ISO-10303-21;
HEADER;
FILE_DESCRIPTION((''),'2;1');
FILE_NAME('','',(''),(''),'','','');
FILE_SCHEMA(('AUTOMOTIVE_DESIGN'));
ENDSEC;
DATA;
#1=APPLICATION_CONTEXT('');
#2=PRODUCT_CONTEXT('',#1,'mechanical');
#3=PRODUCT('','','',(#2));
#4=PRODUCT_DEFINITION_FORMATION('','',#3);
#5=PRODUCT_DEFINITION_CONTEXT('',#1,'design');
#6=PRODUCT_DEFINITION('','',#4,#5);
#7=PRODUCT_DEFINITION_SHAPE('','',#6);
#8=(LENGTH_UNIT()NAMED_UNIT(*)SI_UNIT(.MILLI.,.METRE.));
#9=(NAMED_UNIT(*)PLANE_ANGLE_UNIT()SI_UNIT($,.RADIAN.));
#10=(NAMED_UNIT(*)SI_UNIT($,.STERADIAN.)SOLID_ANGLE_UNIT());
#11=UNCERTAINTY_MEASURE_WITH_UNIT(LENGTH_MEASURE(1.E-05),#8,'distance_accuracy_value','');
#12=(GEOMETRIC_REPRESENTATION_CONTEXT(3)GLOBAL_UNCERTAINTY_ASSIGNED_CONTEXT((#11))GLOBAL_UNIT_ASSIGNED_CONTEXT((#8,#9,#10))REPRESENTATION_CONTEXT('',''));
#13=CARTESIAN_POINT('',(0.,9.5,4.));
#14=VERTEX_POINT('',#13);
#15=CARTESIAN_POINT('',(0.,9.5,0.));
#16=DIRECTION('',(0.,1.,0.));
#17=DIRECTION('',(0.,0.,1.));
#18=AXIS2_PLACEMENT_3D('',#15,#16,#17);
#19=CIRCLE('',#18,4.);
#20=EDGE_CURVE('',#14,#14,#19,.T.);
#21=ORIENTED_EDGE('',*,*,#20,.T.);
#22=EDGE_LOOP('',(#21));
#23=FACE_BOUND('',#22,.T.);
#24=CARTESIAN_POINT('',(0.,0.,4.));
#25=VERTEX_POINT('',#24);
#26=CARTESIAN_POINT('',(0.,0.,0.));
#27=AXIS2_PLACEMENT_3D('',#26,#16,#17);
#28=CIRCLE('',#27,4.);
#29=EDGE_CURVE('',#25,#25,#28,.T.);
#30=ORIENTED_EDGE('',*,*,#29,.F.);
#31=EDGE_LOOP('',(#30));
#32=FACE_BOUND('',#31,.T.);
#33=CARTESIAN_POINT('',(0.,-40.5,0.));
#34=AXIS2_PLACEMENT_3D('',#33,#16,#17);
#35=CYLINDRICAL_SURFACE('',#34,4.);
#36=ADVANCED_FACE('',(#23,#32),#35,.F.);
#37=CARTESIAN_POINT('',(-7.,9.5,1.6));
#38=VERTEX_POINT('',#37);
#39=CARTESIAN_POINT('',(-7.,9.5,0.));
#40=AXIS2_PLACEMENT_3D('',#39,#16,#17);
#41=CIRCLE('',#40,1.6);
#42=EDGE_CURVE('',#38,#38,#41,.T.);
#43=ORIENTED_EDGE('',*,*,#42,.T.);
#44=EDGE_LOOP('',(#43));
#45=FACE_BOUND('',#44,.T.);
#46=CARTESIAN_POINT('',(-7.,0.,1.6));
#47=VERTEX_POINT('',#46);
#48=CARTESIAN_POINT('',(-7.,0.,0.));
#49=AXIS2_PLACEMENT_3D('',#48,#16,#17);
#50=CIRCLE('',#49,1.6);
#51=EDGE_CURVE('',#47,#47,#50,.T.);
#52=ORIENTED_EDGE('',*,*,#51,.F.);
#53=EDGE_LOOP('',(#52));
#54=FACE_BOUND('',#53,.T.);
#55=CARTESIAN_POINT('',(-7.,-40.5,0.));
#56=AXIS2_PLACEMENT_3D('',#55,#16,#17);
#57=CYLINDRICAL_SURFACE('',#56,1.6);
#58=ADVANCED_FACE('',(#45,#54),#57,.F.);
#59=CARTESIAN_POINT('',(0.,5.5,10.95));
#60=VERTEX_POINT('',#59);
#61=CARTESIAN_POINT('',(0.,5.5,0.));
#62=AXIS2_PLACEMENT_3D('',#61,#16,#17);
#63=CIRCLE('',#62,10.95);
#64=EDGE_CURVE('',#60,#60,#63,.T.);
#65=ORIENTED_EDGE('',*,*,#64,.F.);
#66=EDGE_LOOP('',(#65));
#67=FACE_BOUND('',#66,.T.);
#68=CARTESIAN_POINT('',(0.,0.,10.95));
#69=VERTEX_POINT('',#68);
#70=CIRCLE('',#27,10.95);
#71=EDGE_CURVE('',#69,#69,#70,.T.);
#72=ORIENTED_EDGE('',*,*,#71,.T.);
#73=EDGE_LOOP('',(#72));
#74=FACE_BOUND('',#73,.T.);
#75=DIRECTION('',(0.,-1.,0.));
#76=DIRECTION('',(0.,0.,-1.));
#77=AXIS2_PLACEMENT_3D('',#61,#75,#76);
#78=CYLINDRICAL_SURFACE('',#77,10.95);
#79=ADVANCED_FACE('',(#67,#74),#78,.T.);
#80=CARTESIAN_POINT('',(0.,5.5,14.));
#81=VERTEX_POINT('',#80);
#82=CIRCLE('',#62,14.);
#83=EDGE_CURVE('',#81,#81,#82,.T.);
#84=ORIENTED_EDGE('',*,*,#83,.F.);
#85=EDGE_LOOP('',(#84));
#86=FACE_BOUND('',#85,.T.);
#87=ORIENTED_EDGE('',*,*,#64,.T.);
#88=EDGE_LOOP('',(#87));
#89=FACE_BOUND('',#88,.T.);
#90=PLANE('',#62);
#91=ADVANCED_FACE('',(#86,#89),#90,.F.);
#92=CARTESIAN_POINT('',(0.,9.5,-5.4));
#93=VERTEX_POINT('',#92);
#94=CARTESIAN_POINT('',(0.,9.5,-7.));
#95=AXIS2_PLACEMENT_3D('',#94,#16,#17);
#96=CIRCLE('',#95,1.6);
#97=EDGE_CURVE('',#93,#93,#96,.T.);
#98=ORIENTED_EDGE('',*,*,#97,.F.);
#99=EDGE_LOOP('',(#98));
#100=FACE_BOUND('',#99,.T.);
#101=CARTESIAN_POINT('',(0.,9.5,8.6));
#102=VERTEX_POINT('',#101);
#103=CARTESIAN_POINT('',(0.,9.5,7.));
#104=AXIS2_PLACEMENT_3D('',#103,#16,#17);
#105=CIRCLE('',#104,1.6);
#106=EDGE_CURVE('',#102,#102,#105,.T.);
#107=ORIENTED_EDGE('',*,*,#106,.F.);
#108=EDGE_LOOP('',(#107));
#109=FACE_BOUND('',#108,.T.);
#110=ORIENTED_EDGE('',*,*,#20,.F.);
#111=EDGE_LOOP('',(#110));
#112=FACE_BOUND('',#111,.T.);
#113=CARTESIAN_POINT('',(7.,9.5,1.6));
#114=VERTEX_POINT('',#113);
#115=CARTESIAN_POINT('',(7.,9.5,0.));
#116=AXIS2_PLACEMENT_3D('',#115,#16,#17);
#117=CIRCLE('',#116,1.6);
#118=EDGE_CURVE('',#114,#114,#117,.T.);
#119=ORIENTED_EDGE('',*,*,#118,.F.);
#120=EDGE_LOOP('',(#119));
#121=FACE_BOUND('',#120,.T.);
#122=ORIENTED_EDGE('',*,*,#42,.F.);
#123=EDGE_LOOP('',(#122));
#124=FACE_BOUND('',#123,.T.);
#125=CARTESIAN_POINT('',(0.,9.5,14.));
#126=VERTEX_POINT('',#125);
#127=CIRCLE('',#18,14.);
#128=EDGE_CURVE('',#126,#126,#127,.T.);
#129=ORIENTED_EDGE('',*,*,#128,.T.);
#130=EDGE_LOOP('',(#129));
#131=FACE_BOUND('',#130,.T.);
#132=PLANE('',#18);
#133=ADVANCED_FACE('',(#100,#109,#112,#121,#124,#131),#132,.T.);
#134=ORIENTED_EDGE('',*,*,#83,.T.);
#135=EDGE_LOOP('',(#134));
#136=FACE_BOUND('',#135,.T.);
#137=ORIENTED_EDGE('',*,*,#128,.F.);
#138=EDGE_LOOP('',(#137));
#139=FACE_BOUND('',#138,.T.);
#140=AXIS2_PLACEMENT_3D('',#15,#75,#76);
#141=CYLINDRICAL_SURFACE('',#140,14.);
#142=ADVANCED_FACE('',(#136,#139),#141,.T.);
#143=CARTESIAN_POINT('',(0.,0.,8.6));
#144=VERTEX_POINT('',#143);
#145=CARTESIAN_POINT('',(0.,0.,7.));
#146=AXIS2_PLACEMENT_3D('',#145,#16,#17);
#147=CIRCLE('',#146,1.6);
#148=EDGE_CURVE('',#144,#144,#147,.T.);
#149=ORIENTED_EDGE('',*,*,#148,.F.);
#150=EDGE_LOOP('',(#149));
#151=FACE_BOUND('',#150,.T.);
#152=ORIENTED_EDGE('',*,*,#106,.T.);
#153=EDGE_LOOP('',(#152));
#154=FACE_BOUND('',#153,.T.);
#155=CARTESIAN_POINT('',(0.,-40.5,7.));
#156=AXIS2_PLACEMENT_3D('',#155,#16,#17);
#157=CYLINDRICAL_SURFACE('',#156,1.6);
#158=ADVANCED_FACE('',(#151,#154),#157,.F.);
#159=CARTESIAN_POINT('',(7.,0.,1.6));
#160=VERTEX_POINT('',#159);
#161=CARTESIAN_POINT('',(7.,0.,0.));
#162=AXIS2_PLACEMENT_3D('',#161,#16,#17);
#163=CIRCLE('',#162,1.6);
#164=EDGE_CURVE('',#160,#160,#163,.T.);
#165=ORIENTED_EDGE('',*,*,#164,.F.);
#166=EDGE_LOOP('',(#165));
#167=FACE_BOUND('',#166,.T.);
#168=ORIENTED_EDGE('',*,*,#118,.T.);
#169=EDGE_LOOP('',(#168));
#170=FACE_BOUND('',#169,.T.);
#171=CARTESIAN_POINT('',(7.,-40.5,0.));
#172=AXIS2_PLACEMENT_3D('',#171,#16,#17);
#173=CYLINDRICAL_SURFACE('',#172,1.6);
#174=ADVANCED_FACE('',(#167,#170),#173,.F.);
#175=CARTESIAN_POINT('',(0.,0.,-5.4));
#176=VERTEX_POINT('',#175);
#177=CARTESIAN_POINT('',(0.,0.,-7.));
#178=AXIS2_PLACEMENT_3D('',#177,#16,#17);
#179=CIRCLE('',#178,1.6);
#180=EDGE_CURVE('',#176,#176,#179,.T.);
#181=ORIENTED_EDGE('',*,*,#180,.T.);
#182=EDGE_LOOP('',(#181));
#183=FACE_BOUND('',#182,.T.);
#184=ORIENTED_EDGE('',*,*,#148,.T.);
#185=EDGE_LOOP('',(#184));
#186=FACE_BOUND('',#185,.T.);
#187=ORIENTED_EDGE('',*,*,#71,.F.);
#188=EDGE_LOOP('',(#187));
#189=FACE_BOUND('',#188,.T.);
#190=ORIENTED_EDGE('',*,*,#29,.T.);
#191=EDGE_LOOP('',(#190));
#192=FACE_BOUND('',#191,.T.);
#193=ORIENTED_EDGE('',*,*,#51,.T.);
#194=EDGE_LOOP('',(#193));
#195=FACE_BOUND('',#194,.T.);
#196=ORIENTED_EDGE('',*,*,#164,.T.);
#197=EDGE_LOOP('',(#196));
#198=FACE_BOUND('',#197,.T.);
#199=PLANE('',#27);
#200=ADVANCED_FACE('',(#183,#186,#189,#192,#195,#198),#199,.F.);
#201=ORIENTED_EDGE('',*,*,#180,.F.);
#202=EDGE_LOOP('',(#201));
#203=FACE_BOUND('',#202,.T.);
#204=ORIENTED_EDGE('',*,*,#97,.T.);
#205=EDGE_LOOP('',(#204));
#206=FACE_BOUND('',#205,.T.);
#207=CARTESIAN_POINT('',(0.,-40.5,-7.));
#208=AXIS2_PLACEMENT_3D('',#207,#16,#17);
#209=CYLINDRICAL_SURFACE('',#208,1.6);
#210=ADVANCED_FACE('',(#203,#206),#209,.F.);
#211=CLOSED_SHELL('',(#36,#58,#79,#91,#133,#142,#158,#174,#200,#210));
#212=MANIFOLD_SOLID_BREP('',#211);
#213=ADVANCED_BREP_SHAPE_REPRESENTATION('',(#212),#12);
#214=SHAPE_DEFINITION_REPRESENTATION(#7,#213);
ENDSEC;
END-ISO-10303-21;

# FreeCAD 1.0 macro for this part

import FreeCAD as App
import Part
import Sketcher
from FreeCAD import Vector
Q = App.Units.Quantity

doc = App.newDocument("Part")
body = doc.addObject("PartDesign::Body", "Body")

# Sketch on XZ plane
sketch1 = body.newObject("Sketcher::SketchObject", "Sketch")
sketch1.AttachmentSupport = (doc.getObject("XZ_Plane"), [""])
sketch1.MapMode = "FlatFace"
sketch1.addGeometry(Part.Circle(Vector(0, 0, 0), Vector(0, 0, 1), 11), False)
sketch1.addConstraint(Sketcher.Constraint("Coincident", 0, 3, -1, 1))
sketch1.addConstraint(Sketcher.Constraint("Diameter", 0, Q("21.9 mm")))
pad1 = body.newObject("PartDesign::Pad", "Pad")
pad1.Profile = sketch1
pad1.Length = 5.5
pad1.Reversed = True

# Sketch on XZ plane
sketch2 = body.newObject("Sketcher::SketchObject", "Sketch001")
sketch2.AttachmentSupport = (doc.getObject("XZ_Plane"), [""])
sketch2.MapMode = "FlatFace"
sketch2.AttachmentOffset = App.Placement(Vector(0, 0, -5.5), App.Rotation())
sketch2.addGeometry(Part.Circle(Vector(0, 0, 0), Vector(0, 0, 1), 14), False)
sketch2.addConstraint(Sketcher.Constraint("Coincident", 0, 3, -1, 1))
sketch2.addConstraint(Sketcher.Constraint("Diameter", 0, Q("28 mm")))
pad2 = body.newObject("PartDesign::Pad", "Pad001")
pad2.Profile = sketch2
pad2.Length = 4
pad2.Reversed = True

# Sketch on XZ plane
sketch3 = body.newObject("Sketcher::SketchObject", "Sketch002")
sketch3.AttachmentSupport = (doc.getObject("XZ_Plane"), [""])
sketch3.MapMode = "FlatFace"
sketch3.AttachmentOffset = App.Placement(Vector(0, 0, -9.5), App.Rotation())
sketch3.addGeometry(Part.Circle(Vector(0, 0, 0), Vector(0, 0, 1), 4), False)
sketch3.addGeometry(Part.Circle(Vector(0, -7, 0), Vector(0, 0, 1), 1.6), False)
sketch3.addGeometry(Part.Circle(Vector(7, 0, 0), Vector(0, 0, 1), 1.6), False)
sketch3.addGeometry(Part.Circle(Vector(0, 7, 0), Vector(0, 0, 1), 1.6), False)
sketch3.addGeometry(Part.Circle(Vector(-7, 0, 0), Vector(0, 0, 1), 1.6), False)
sketch3.addConstraint(Sketcher.Constraint("Coincident", 0, 3, -1, 1))
sketch3.addConstraint(Sketcher.Constraint("Equal", 1, 2))
sketch3.addConstraint(Sketcher.Constraint("Equal", 2, 3))
sketch3.addConstraint(Sketcher.Constraint("Equal", 3, 4))
sketch3.addConstraint(Sketcher.Constraint("Symmetric", 1, 3, 3, 3, -1, 1))
sketch3.addConstraint(Sketcher.Constraint("Symmetric", 2, 3, 4, 3, -1, 1))
sketch3.addConstraint(Sketcher.Constraint("PointOnObject", 1, 3, -2))
sketch3.addConstraint(Sketcher.Constraint("PointOnObject", 2, 3, -1))
sketch3.addConstraint(Sketcher.Constraint("Diameter", 0, Q("8 mm")))
sketch3.addConstraint(Sketcher.Constraint("Diameter", 1, Q("3.2 mm")))
sketch3.addConstraint(Sketcher.Constraint("DistanceY", 1, 3, -1, 1, Q("7 mm")))
sketch3.addConstraint(Sketcher.Constraint("DistanceX", -1, 1, 2, 3, Q("7 mm")))
pocket1 = body.newObject("PartDesign::Pocket", "Pocket")
pocket1.Profile = sketch3
pocket1.Length = 50
pocket1.Reversed = True

doc.recompute()
